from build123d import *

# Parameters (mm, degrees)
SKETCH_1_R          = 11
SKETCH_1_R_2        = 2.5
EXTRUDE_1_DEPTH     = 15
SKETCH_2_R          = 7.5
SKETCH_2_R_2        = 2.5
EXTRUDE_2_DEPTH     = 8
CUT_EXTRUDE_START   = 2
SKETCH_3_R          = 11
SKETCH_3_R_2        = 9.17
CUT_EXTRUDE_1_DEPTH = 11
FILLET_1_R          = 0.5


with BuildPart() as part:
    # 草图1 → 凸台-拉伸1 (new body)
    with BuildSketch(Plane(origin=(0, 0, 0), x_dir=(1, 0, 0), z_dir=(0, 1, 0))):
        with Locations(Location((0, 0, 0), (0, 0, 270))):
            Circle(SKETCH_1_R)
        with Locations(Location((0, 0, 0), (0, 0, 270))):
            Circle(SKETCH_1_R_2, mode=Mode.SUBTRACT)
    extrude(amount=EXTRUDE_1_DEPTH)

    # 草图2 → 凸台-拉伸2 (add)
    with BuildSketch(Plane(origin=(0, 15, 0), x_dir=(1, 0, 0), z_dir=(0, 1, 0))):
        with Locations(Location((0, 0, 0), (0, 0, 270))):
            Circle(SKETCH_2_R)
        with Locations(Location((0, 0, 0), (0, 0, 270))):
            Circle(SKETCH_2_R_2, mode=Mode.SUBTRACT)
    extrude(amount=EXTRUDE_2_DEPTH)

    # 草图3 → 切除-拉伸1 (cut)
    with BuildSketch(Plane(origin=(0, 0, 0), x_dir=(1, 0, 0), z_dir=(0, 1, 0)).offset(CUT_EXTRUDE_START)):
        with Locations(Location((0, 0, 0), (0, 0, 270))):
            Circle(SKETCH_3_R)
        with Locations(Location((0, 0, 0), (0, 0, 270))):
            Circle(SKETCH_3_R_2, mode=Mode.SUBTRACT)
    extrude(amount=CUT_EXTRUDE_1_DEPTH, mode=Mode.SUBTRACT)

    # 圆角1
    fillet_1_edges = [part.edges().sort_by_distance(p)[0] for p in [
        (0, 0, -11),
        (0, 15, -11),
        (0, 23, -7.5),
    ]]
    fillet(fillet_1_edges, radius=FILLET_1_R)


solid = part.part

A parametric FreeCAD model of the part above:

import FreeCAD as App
import Part
import Sketcher
Q = App.Units.Quantity


def edges_at(feature, points):
    """Names of the edges that pass closest to the given points."""
    edges = feature.Shape.Edges
    near = lambda p: min(range(len(edges)), key=lambda i: edges[i].distToShape(Part.Vertex(*p))[0])
    return sorted({f"Edge{near(p) + 1}" for p in points})

doc = App.newDocument("Part")
body = doc.addObject("PartDesign::Body", "Body")

sketch1 = body.newObject("Sketcher::SketchObject", "Sketch")
sketch1.AttachmentSupport = (doc.getObject("XZ_Plane"), [""])
sketch1.MapMode = "FlatFace"
sketch1.addGeometry([
    Part.Circle(App.Vector(0, 0, 0), App.Vector(0, 0, 1), 11),
    Part.Circle(App.Vector(0, 0, 0), App.Vector(0, 0, 1), 2.5),
], False)
sketch1.addConstraint([
    Sketcher.Constraint("Coincident", 0, 3, -1, 1),
    Sketcher.Constraint("Coincident", 1, 3, -1, 1),
    Sketcher.Constraint("Diameter", 0, Q("22 mm")),
    Sketcher.Constraint("Diameter", 1, Q("5 mm")),
])
pad1 = body.newObject("PartDesign::Pad", "Pad")
pad1.Profile = sketch1
pad1.Length = 15
pad1.Reversed = True

sketch2 = body.newObject("Sketcher::SketchObject", "Sketch001")
sketch2.AttachmentSupport = (doc.getObject("XZ_Plane"), [""])
sketch2.MapMode = "FlatFace"
sketch2.AttachmentOffset = App.Placement(App.Vector(0, 0, -15), App.Rotation())
sketch2.addGeometry([
    Part.Circle(App.Vector(0, 0, 0), App.Vector(0, 0, 1), 7.5),
    Part.Circle(App.Vector(0, 0, 0), App.Vector(0, 0, 1), 2.5),
], False)
sketch2.addConstraint([
    Sketcher.Constraint("Coincident", 0, 3, -1, 1),
    Sketcher.Constraint("Coincident", 1, 3, -1, 1),
    Sketcher.Constraint("Diameter", 0, Q("15 mm")),
    Sketcher.Constraint("Diameter", 1, Q("5 mm")),
])
pad2 = body.newObject("PartDesign::Pad", "Pad001")
pad2.Profile = sketch2
pad2.Length = 8
pad2.Reversed = True

sketch3 = body.newObject("Sketcher::SketchObject", "Sketch002")
sketch3.AttachmentSupport = (doc.getObject("XZ_Plane"), [""])
sketch3.MapMode = "FlatFace"
sketch3.AttachmentOffset = App.Placement(App.Vector(0, 0, -2), App.Rotation())
sketch3.addGeometry([
    Part.Circle(App.Vector(0, 0, 0), App.Vector(0, 0, 1), 11),
    Part.Circle(App.Vector(0, 0, 0), App.Vector(0, 0, 1), 9),
], False)
sketch3.addConstraint([
    Sketcher.Constraint("Coincident", 0, 3, -1, 1),
    Sketcher.Constraint("Coincident", 1, 3, -1, 1),
    Sketcher.Constraint("Diameter", 0, Q("22 mm")),
    Sketcher.Constraint("Diameter", 1, Q("18.34 mm")),
])
pocket1 = body.newObject("PartDesign::Pocket", "Pocket")
pocket1.Profile = sketch3
pocket1.Length = 11
doc.recompute()

fillet = body.newObject("PartDesign::Fillet", "Fillet")
fillet.Base = (pocket1, edges_at(pocket1, [(0, 0, -11), (0, 15, -11), (0, 23, -7.5)]))
fillet.Radius = 0.5

doc.recompute()
